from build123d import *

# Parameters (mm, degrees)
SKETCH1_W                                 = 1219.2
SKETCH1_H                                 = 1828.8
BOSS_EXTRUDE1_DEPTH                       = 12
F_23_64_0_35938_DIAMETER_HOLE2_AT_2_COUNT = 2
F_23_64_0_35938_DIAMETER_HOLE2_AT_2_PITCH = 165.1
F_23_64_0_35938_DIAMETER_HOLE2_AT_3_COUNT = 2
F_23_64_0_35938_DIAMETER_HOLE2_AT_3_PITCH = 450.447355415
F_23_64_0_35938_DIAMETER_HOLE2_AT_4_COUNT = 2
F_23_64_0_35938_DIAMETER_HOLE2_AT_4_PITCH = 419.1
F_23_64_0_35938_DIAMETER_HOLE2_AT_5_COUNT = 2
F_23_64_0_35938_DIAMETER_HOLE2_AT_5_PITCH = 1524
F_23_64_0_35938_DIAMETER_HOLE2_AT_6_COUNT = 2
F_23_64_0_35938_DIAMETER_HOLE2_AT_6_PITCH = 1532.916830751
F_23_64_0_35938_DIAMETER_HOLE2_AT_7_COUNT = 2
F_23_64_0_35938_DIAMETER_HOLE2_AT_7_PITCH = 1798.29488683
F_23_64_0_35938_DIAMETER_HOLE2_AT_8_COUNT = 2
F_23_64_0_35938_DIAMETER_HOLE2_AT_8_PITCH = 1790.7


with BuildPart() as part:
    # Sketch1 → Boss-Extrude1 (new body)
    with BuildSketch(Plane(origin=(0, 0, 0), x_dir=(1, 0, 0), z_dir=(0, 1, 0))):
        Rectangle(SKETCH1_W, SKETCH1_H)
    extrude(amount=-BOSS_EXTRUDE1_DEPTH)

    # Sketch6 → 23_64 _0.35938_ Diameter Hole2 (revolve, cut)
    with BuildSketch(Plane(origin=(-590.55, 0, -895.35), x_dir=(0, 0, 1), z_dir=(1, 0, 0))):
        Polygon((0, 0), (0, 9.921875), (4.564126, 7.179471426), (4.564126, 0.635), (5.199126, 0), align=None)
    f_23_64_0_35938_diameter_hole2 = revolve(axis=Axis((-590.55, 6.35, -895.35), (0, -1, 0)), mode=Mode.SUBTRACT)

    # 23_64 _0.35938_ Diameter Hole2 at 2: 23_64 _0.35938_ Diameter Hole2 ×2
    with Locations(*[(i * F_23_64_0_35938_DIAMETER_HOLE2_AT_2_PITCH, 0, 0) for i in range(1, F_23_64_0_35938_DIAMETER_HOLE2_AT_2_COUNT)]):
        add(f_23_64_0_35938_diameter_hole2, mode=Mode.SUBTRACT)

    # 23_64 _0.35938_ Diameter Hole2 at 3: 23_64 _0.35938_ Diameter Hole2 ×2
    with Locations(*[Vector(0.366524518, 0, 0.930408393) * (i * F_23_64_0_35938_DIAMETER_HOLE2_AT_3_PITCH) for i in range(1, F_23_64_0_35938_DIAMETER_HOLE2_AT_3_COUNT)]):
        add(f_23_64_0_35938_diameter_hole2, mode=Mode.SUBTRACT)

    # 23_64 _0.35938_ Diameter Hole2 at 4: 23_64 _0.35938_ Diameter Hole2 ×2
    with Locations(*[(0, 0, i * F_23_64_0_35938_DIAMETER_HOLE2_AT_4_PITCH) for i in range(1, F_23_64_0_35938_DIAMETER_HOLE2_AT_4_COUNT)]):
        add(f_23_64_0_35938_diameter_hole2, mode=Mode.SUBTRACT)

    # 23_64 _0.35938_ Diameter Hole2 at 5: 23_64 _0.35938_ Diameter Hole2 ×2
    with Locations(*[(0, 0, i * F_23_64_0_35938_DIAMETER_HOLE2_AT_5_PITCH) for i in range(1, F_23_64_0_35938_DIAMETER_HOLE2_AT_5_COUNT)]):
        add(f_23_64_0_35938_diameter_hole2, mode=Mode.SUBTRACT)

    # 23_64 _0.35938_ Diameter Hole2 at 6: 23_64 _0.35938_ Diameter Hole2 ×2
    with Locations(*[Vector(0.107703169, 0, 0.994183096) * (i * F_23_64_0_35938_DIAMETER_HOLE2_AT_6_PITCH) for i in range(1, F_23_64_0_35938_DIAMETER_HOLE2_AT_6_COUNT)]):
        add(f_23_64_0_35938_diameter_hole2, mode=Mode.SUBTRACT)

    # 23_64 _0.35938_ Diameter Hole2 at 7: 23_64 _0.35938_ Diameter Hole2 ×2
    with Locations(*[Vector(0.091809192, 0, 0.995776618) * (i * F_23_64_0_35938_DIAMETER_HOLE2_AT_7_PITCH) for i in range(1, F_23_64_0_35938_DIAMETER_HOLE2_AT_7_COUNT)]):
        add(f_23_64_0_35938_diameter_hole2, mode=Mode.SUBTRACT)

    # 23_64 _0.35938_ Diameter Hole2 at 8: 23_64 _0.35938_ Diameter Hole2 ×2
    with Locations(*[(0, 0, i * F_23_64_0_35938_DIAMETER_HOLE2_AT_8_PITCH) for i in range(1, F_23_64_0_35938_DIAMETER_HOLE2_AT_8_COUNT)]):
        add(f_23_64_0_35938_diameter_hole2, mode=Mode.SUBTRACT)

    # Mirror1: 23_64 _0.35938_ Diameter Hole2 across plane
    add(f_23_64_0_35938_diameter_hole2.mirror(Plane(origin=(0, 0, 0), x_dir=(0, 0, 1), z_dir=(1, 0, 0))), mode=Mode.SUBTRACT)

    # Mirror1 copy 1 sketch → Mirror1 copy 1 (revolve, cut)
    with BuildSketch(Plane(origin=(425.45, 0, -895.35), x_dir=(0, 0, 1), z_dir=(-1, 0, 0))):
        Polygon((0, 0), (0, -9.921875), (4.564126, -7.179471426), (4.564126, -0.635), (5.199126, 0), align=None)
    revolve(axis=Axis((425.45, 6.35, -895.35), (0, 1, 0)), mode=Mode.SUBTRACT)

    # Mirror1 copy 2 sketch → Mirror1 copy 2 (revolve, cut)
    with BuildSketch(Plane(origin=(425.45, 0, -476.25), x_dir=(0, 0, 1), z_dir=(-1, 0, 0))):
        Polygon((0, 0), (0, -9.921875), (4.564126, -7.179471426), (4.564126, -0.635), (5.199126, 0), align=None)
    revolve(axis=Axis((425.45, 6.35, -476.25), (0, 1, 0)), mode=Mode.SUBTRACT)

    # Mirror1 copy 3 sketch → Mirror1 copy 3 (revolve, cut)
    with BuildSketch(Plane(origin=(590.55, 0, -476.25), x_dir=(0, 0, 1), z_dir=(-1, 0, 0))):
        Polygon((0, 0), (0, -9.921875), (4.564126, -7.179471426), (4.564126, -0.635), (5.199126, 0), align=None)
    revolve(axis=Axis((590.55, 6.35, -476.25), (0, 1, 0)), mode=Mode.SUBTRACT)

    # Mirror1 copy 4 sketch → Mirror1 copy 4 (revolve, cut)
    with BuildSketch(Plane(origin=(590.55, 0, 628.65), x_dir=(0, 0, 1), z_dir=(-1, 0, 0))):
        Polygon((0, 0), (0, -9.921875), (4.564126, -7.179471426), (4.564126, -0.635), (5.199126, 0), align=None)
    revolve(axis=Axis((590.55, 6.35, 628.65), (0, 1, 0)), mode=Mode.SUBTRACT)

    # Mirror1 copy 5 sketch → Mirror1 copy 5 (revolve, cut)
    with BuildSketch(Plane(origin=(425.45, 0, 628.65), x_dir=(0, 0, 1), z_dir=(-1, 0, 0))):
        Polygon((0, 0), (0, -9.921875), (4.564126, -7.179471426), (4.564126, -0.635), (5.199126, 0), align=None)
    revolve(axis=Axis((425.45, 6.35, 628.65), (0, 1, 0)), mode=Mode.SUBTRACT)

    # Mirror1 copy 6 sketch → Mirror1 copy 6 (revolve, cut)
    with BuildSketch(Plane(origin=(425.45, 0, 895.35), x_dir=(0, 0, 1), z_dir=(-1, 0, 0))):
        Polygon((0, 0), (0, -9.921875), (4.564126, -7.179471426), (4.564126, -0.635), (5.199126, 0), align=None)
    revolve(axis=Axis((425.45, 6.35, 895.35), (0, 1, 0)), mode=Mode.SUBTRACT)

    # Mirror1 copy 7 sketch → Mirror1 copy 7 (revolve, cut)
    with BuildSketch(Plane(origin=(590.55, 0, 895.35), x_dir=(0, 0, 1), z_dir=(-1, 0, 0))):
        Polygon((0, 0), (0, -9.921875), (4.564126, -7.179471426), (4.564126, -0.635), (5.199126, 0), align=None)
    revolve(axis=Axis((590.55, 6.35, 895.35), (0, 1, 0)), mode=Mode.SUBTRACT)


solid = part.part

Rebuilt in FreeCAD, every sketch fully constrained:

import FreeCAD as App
import Part
import Sketcher

V = App.Vector
Q = App.Units.Quantity

doc = App.newDocument("Part")
body = doc.addObject("PartDesign::Body", "Body")

# Sketch on XZ plane
sketch1 = body.newObject("Sketcher::SketchObject", "Sketch")
sketch1.AttachmentSupport = (doc.getObject("XZ_Plane"), [""])
sketch1.MapMode = "FlatFace"
sketch1.addGeometry(Part.LineSegment(V(-610, -914, 0), V(-610, 914, 0)), False)
sketch1.addGeometry(Part.LineSegment(V(-610, 914, 0), V(610, 914, 0)), False)
sketch1.addGeometry(Part.LineSegment(V(610, 914, 0), V(610, -914, 0)), False)
sketch1.addGeometry(Part.LineSegment(V(610, -914, 0), V(-610, -914, 0)), False)
sketch1.addConstraint(Sketcher.Constraint("Coincident", 0, 2, 1, 1))
sketch1.addConstraint(Sketcher.Constraint("Coincident", 1, 2, 2, 1))
sketch1.addConstraint(Sketcher.Constraint("Coincident", 2, 2, 3, 1))
sketch1.addConstraint(Sketcher.Constraint("Coincident", 3, 2, 0, 1))
sketch1.addConstraint(Sketcher.Constraint("Vertical", 0))
sketch1.addConstraint(Sketcher.Constraint("Horizontal", 1))
sketch1.addConstraint(Sketcher.Constraint("Vertical", 2))
sketch1.addConstraint(Sketcher.Constraint("Horizontal", 3))
sketch1.addConstraint(Sketcher.Constraint("Symmetric", 0, 2, 2, 2, -1, 1))
sketch1.addConstraint(Sketcher.Constraint("DistanceX", 1, 1, 1, 2, Q("48 in")))
sketch1.addConstraint(Sketcher.Constraint("DistanceY", 0, 1, 0, 2, Q("72 in")))
pad1 = body.newObject("PartDesign::Pad", "Pad")
pad1.Profile = sketch1
pad1.Length = 12

# Sketch on YZ plane
sketch2 = body.newObject("Sketcher::SketchObject", "Sketch001")
sketch2.AttachmentSupport = (doc.getObject("YZ_Plane"), [""])
sketch2.MapMode = "FlatFace"
sketch2.AttachmentOffset = App.Placement(V(0, 0, -23.25 * 25.4), App.Rotation())
sketch2.addGeometry(Part.LineSegment(V(-9.9, -895.4, 0), V(0, -895.4, 0)), False)
sketch2.addGeometry(Part.LineSegment(V(0, -895.4, 0), V(0, -890.2, 0)), False)
sketch2.addGeometry(Part.LineSegment(V(0, -890.2, 0), V(-0.6, -890.8, 0)), False)
sketch2.addGeometry(Part.LineSegment(V(-0.6, -890.8, 0), V(-7.2, -890.8, 0)), False)
sketch2.addGeometry(Part.LineSegment(V(-7.2, -890.8, 0), V(-9.9, -895.4, 0)), False)
sketch2.addGeometry(Part.LineSegment(V(0, -895.4, 0), V(-9.9, -895.4, 0)), True)  # axis
sketch2.addConstraint(Sketcher.Constraint("Coincident", 0, 2, 1, 1))
sketch2.addConstraint(Sketcher.Constraint("Coincident", 1, 2, 2, 1))
sketch2.addConstraint(Sketcher.Constraint("Coincident", 2, 2, 3, 1))
sketch2.addConstraint(Sketcher.Constraint("Coincident", 3, 2, 4, 1))
sketch2.addConstraint(Sketcher.Constraint("Coincident", 4, 2, 0, 1))
sketch2.addConstraint(Sketcher.Constraint("Horizontal", 0))
sketch2.addConstraint(Sketcher.Constraint("Vertical", 1))
sketch2.addConstraint(Sketcher.Constraint("Horizontal", 3))
sketch2.addConstraint(Sketcher.Constraint("Horizontal", 5))
sketch2.addConstraint(Sketcher.Constraint("Coincident", 5, 1, 0, 2))
sketch2.addConstraint(Sketcher.Constraint("PointOnObject", 0, 2, -2))
sketch2.addConstraint(Sketcher.Constraint("Equal", 0, 5))
sketch2.addConstraint(Sketcher.Constraint("Angle", 2, Q("-135 deg")))
sketch2.addConstraint(Sketcher.Constraint("Angle", 4, Q("-121 deg")))
sketch2.addConstraint(Sketcher.Constraint("DistanceX", 0, 1, 0, 2, Q("0.390625 in")))
sketch2.addConstraint(Sketcher.Constraint("DistanceY", 0, 2, -1, 1, Q("35.25 in")))
sketch2.addConstraint(Sketcher.Constraint("DistanceX", 2, 2, -1, 1, Q("0.025 in")))
sketch2.addConstraint(Sketcher.Constraint("DistanceX", 3, 2, 3, 1, Q("6.544471 mm")))
groove = body.newObject("PartDesign::Groove", "Groove")
groove.Profile = sketch2
groove.ReferenceAxis = (sketch2, ["Axis0"])
groove.Angle = 360
doc.recompute()

linearpattern = body.newObject("PartDesign::LinearPattern", "LinearPattern")
linearpattern.Originals = [groove]
linearpattern.Direction = (doc.getObject("X_Axis"), [""])
linearpattern.Mode = "offset"
linearpattern.Offset = Q("6.5 in")
linearpattern.Occurrences = 2
body.Tip = linearpattern
doc.recompute()

datumline = body.newObject("PartDesign::Line", "DatumLine")
datumline.Placement = App.Placement(V(0, 0, 0), App.Rotation(V(0, 0, 1), V(0.366524518, 0, 0.930408393)))
linearpattern2 = body.newObject("PartDesign::LinearPattern", "LinearPattern001")
linearpattern2.Originals = [groove]
linearpattern2.Direction = (datumline, [""])
linearpattern2.Mode = "offset"
linearpattern2.Offset = 450.447355
linearpattern2.Occurrences = 2
body.Tip = linearpattern2
doc.recompute()

linearpattern3 = body.newObject("PartDesign::LinearPattern", "LinearPattern002")
linearpattern3.Originals = [groove]
linearpattern3.Direction = (doc.getObject("Z_Axis"), [""])
linearpattern3.Mode = "offset"
linearpattern3.Offset = Q("16.5 in")
linearpattern3.Occurrences = 2
body.Tip = linearpattern3
doc.recompute()

linearpattern4 = body.newObject("PartDesign::LinearPattern", "LinearPattern003")
linearpattern4.Originals = [groove]
linearpattern4.Direction = (doc.getObject("Z_Axis"), [""])
linearpattern4.Mode = "offset"
linearpattern4.Offset = Q("60 in")
linearpattern4.Occurrences = 2
body.Tip = linearpattern4
doc.recompute()

datumline2 = body.newObject("PartDesign::Line", "DatumLine001")
datumline2.Placement = App.Placement(V(0, 0, 0), App.Rotation(V(0, 0, 1), V(0.107703169, 0, 0.994183096)))
linearpattern5 = body.newObject("PartDesign::LinearPattern", "LinearPattern004")
linearpattern5.Originals = [groove]
linearpattern5.Direction = (datumline2, [""])
linearpattern5.Mode = "offset"
linearpattern5.Offset = 1532.916832
linearpattern5.Occurrences = 2
body.Tip = linearpattern5
doc.recompute()

datumline3 = body.newObject("PartDesign::Line", "DatumLine002")
datumline3.Placement = App.Placement(V(0, 0, 0), App.Rotation(V(0, 0, 1), V(0.091809192, 0, 0.995776618)))
linearpattern6 = body.newObject("PartDesign::LinearPattern", "LinearPattern005")
linearpattern6.Originals = [groove]
linearpattern6.Direction = (datumline3, [""])
linearpattern6.Mode = "offset"
linearpattern6.Offset = 1798.294887
linearpattern6.Occurrences = 2
body.Tip = linearpattern6
doc.recompute()

linearpattern7 = body.newObject("PartDesign::LinearPattern", "LinearPattern006")
linearpattern7.Originals = [groove]
linearpattern7.Direction = (doc.getObject("Z_Axis"), [""])
linearpattern7.Mode = "offset"
linearpattern7.Offset = Q("70.5 in")
linearpattern7.Occurrences = 2
body.Tip = linearpattern7
doc.recompute()

mirrored = body.newObject("PartDesign::Mirrored", "Mirrored")
mirrored.Originals = [groove]
mirrored.MirrorPlane = (doc.getObject("YZ_Plane"), [""])
body.Tip = mirrored

# Sketch on YZ plane
sketch3 = body.newObject("Sketcher::SketchObject", "Sketch002")
sketch3.AttachmentSupport = (doc.getObject("YZ_Plane"), [""])
sketch3.MapMode = "FlatFace"
sketch3.AttachmentOffset = App.Placement(V(0, 0, 16.75 * 25.4), App.Rotation())
sketch3.addGeometry(Part.LineSegment(V(0, -895.4, 0), V(-9.9, -895.4, 0)), False)
sketch3.addGeometry(Part.LineSegment(V(-9.9, -895.4, 0), V(-7.2, -890.8, 0)), False)
sketch3.addGeometry(Part.LineSegment(V(-7.2, -890.8, 0), V(-0.6, -890.8, 0)), False)
sketch3.addGeometry(Part.LineSegment(V(-0.6, -890.8, 0), V(0, -890.2, 0)), False)
sketch3.addGeometry(Part.LineSegment(V(0, -890.2, 0), V(0, -895.4, 0)), False)
sketch3.addGeometry(Part.LineSegment(V(-9.9, -895.4, 0), V(0, -895.4, 0)), True)  # axis
sketch3.addConstraint(Sketcher.Constraint("Coincident", 0, 2, 1, 1))
sketch3.addConstraint(Sketcher.Constraint("Coincident", 1, 2, 2, 1))
sketch3.addConstraint(Sketcher.Constraint("Coincident", 2, 2, 3, 1))
sketch3.addConstraint(Sketcher.Constraint("Coincident", 3, 2, 4, 1))
sketch3.addConstraint(Sketcher.Constraint("Coincident", 4, 2, 0, 1))
sketch3.addConstraint(Sketcher.Constraint("Horizontal", 0))
sketch3.addConstraint(Sketcher.Constraint("Horizontal", 2))
sketch3.addConstraint(Sketcher.Constraint("Vertical", 4))
sketch3.addConstraint(Sketcher.Constraint("Horizontal", 5))
sketch3.addConstraint(Sketcher.Constraint("Coincident", 5, 1, 0, 2))
sketch3.addConstraint(Sketcher.Constraint("PointOnObject", 3, 2, -2))
sketch3.addConstraint(Sketcher.Constraint("PointOnObject", 5, 2, -2))
sketch3.addConstraint(Sketcher.Constraint("Angle", 1, Q("59 deg")))
sketch3.addConstraint(Sketcher.Constraint("Angle", 3, Q("45 deg")))
sketch3.addConstraint(Sketcher.Constraint("DistanceX", 0, 2, 0, 1, Q("0.390625 in")))
sketch3.addConstraint(Sketcher.Constraint("DistanceY", 0, 2, -1, 1, Q("35.25 in")))
sketch3.addConstraint(Sketcher.Constraint("DistanceX", 2, 2, -1, 1, Q("0.025 in")))
sketch3.addConstraint(Sketcher.Constraint("DistanceX", 2, 1, 2, 2, Q("6.544471 mm")))
groove2 = body.newObject("PartDesign::Groove", "Groove001")
groove2.Profile = sketch3
groove2.ReferenceAxis = (sketch3, ["Axis0"])
groove2.Angle = 360

# Sketch on YZ plane
sketch4 = body.newObject("Sketcher::SketchObject", "Sketch003")
sketch4.AttachmentSupport = (doc.getObject("YZ_Plane"), [""])
sketch4.MapMode = "FlatFace"
sketch4.AttachmentOffset = App.Placement(V(0, 0, 16.75 * 25.4), App.Rotation())
sketch4.addGeometry(Part.LineSegment(V(0, -476.2, 0), V(-9.9, -476.2, 0)), False)
sketch4.addGeometry(Part.LineSegment(V(-9.9, -476.2, 0), V(-7.2, -471.7, 0)), False)
sketch4.addGeometry(Part.LineSegment(V(-7.2, -471.7, 0), V(-0.6, -471.7, 0)), False)
sketch4.addGeometry(Part.LineSegment(V(-0.6, -471.7, 0), V(0, -471.1, 0)), False)
sketch4.addGeometry(Part.LineSegment(V(0, -471.1, 0), V(0, -476.2, 0)), False)
sketch4.addGeometry(Part.LineSegment(V(-9.9, -476.2, 0), V(0, -476.2, 0)), True)  # axis
sketch4.addConstraint(Sketcher.Constraint("Coincident", 0, 2, 1, 1))
sketch4.addConstraint(Sketcher.Constraint("Coincident", 1, 2, 2, 1))
sketch4.addConstraint(Sketcher.Constraint("Coincident", 2, 2, 3, 1))
sketch4.addConstraint(Sketcher.Constraint("Coincident", 3, 2, 4, 1))
sketch4.addConstraint(Sketcher.Constraint("Coincident", 4, 2, 0, 1))
sketch4.addConstraint(Sketcher.Constraint("Horizontal", 0))
sketch4.addConstraint(Sketcher.Constraint("Horizontal", 2))
sketch4.addConstraint(Sketcher.Constraint("Vertical", 4))
sketch4.addConstraint(Sketcher.Constraint("Horizontal", 5))
sketch4.addConstraint(Sketcher.Constraint("Coincident", 5, 1, 0, 2))
sketch4.addConstraint(Sketcher.Constraint("PointOnObject", 3, 2, -2))
sketch4.addConstraint(Sketcher.Constraint("PointOnObject", 5, 2, -2))
sketch4.addConstraint(Sketcher.Constraint("Angle", 1, Q("59 deg")))
sketch4.addConstraint(Sketcher.Constraint("Angle", 3, Q("45 deg")))
sketch4.addConstraint(Sketcher.Constraint("DistanceX", 0, 2, 0, 1, Q("0.390625 in")))
sketch4.addConstraint(Sketcher.Constraint("DistanceY", 0, 2, -1, 1, Q("18.75 in")))
sketch4.addConstraint(Sketcher.Constraint("DistanceX", 2, 2, -1, 1, Q("0.025 in")))
sketch4.addConstraint(Sketcher.Constraint("DistanceX", 2, 1, 2, 2, Q("6.544471 mm")))
groove3 = body.newObject("PartDesign::Groove", "Groove002")
groove3.Profile = sketch4
groove3.ReferenceAxis = (sketch4, ["Axis0"])
groove3.Angle = 360

# Sketch on YZ plane
sketch5 = body.newObject("Sketcher::SketchObject", "Sketch004")
sketch5.AttachmentSupport = (doc.getObject("YZ_Plane"), [""])
sketch5.MapMode = "FlatFace"
sketch5.AttachmentOffset = App.Placement(V(0, 0, 23.25 * 25.4), App.Rotation())
sketch5.addGeometry(Part.LineSegment(V(0, -476.2, 0), V(-9.9, -476.2, 0)), False)
sketch5.addGeometry(Part.LineSegment(V(-9.9, -476.2, 0), V(-7.2, -471.7, 0)), False)
sketch5.addGeometry(Part.LineSegment(V(-7.2, -471.7, 0), V(-0.6, -471.7, 0)), False)
sketch5.addGeometry(Part.LineSegment(V(-0.6, -471.7, 0), V(0, -471.1, 0)), False)
sketch5.addGeometry(Part.LineSegment(V(0, -471.1, 0), V(0, -476.2, 0)), False)
sketch5.addGeometry(Part.LineSegment(V(-9.9, -476.2, 0), V(0, -476.2, 0)), True)  # axis
sketch5.addConstraint(Sketcher.Constraint("Coincident", 0, 2, 1, 1))
sketch5.addConstraint(Sketcher.Constraint("Coincident", 1, 2, 2, 1))
sketch5.addConstraint(Sketcher.Constraint("Coincident", 2, 2, 3, 1))
sketch5.addConstraint(Sketcher.Constraint("Coincident", 3, 2, 4, 1))
sketch5.addConstraint(Sketcher.Constraint("Coincident", 4, 2, 0, 1))
sketch5.addConstraint(Sketcher.Constraint("Horizontal", 0))
sketch5.addConstraint(Sketcher.Constraint("Horizontal", 2))
sketch5.addConstraint(Sketcher.Constraint("Vertical", 4))
sketch5.addConstraint(Sketcher.Constraint("Horizontal", 5))
sketch5.addConstraint(Sketcher.Constraint("Coincident", 5, 1, 0, 2))
sketch5.addConstraint(Sketcher.Constraint("PointOnObject", 3, 2, -2))
sketch5.addConstraint(Sketcher.Constraint("PointOnObject", 5, 2, -2))
sketch5.addConstraint(Sketcher.Constraint("Angle", 1, Q("59 deg")))
sketch5.addConstraint(Sketcher.Constraint("Angle", 3, Q("45 deg")))
sketch5.addConstraint(Sketcher.Constraint("DistanceX", 0, 2, 0, 1, Q("0.390625 in")))
sketch5.addConstraint(Sketcher.Constraint("DistanceY", 0, 2, -1, 1, Q("18.75 in")))
sketch5.addConstraint(Sketcher.Constraint("DistanceX", 2, 2, -1, 1, Q("0.025 in")))
sketch5.addConstraint(Sketcher.Constraint("DistanceX", 2, 1, 2, 2, Q("6.544471 mm")))
groove4 = body.newObject("PartDesign::Groove", "Groove003")
groove4.Profile = sketch5
groove4.ReferenceAxis = (sketch5, ["Axis0"])
groove4.Angle = 360

# Sketch on YZ plane
sketch6 = body.newObject("Sketcher::SketchObject", "Sketch005")
sketch6.AttachmentSupport = (doc.getObject("YZ_Plane"), [""])
sketch6.MapMode = "FlatFace"
sketch6.AttachmentOffset = App.Placement(V(0, 0, 23.25 * 25.4), App.Rotation())
sketch6.addGeometry(Part.LineSegment(V(0, 628.6, 0), V(-9.9, 628.6, 0)), False)
sketch6.addGeometry(Part.LineSegment(V(-9.9, 628.6, 0), V(-7.2, 633.2, 0)), False)
sketch6.addGeometry(Part.LineSegment(V(-7.2, 633.2, 0), V(-0.6, 633.2, 0)), False)
sketch6.addGeometry(Part.LineSegment(V(-0.6, 633.2, 0), V(0, 633.8, 0)), False)
sketch6.addGeometry(Part.LineSegment(V(0, 633.8, 0), V(0, 628.6, 0)), False)
sketch6.addGeometry(Part.LineSegment(V(-9.9, 628.6, 0), V(0, 628.6, 0)), True)  # axis
sketch6.addConstraint(Sketcher.Constraint("Coincident", 0, 2, 1, 1))
sketch6.addConstraint(Sketcher.Constraint("Coincident", 1, 2, 2, 1))
sketch6.addConstraint(Sketcher.Constraint("Coincident", 2, 2, 3, 1))
sketch6.addConstraint(Sketcher.Constraint("Coincident", 3, 2, 4, 1))
sketch6.addConstraint(Sketcher.Constraint("Coincident", 4, 2, 0, 1))
sketch6.addConstraint(Sketcher.Constraint("Horizontal", 0))
sketch6.addConstraint(Sketcher.Constraint("Horizontal", 2))
sketch6.addConstraint(Sketcher.Constraint("Vertical", 4))
sketch6.addConstraint(Sketcher.Constraint("Horizontal", 5))
sketch6.addConstraint(Sketcher.Constraint("Coincident", 5, 1, 0, 2))
sketch6.addConstraint(Sketcher.Constraint("PointOnObject", 3, 2, -2))
sketch6.addConstraint(Sketcher.Constraint("PointOnObject", 5, 2, -2))
sketch6.addConstraint(Sketcher.Constraint("Angle", 1, Q("59 deg")))
sketch6.addConstraint(Sketcher.Constraint("Angle", 3, Q("45 deg")))
sketch6.addConstraint(Sketcher.Constraint("DistanceX", 0, 2, 0, 1, Q("0.390625 in")))
sketch6.addConstraint(Sketcher.Constraint("DistanceY", -1, 1, 0, 2, Q("24.75 in")))
sketch6.addConstraint(Sketcher.Constraint("DistanceX", 2, 2, -1, 1, Q("0.025 in")))
sketch6.addConstraint(Sketcher.Constraint("DistanceX", 2, 1, 2, 2, Q("6.544471 mm")))
groove5 = body.newObject("PartDesign::Groove", "Groove004")
groove5.Profile = sketch6
groove5.ReferenceAxis = (sketch6, ["Axis0"])
groove5.Angle = 360

# Sketch on YZ plane
sketch7 = body.newObject("Sketcher::SketchObject", "Sketch006")
sketch7.AttachmentSupport = (doc.getObject("YZ_Plane"), [""])
sketch7.MapMode = "FlatFace"
sketch7.AttachmentOffset = App.Placement(V(0, 0, 16.75 * 25.4), App.Rotation())
sketch7.addGeometry(Part.LineSegment(V(0, 628.6, 0), V(-9.9, 628.6, 0)), False)
sketch7.addGeometry(Part.LineSegment(V(-9.9, 628.6, 0), V(-7.2, 633.2, 0)), False)
sketch7.addGeometry(Part.LineSegment(V(-7.2, 633.2, 0), V(-0.6, 633.2, 0)), False)
sketch7.addGeometry(Part.LineSegment(V(-0.6, 633.2, 0), V(0, 633.8, 0)), False)
sketch7.addGeometry(Part.LineSegment(V(0, 633.8, 0), V(0, 628.6, 0)), False)
sketch7.addGeometry(Part.LineSegment(V(-9.9, 628.6, 0), V(0, 628.6, 0)), True)  # axis
sketch7.addConstraint(Sketcher.Constraint("Coincident", 0, 2, 1, 1))
sketch7.addConstraint(Sketcher.Constraint("Coincident", 1, 2, 2, 1))
sketch7.addConstraint(Sketcher.Constraint("Coincident", 2, 2, 3, 1))
sketch7.addConstraint(Sketcher.Constraint("Coincident", 3, 2, 4, 1))
sketch7.addConstraint(Sketcher.Constraint("Coincident", 4, 2, 0, 1))
sketch7.addConstraint(Sketcher.Constraint("Horizontal", 0))
sketch7.addConstraint(Sketcher.Constraint("Horizontal", 2))
sketch7.addConstraint(Sketcher.Constraint("Vertical", 4))
sketch7.addConstraint(Sketcher.Constraint("Horizontal", 5))
sketch7.addConstraint(Sketcher.Constraint("Coincident", 5, 1, 0, 2))
sketch7.addConstraint(Sketcher.Constraint("PointOnObject", 3, 2, -2))
sketch7.addConstraint(Sketcher.Constraint("PointOnObject", 5, 2, -2))
sketch7.addConstraint(Sketcher.Constraint("Angle", 1, Q("59 deg")))
sketch7.addConstraint(Sketcher.Constraint("Angle", 3, Q("45 deg")))
sketch7.addConstraint(Sketcher.Constraint("DistanceX", 0, 2, 0, 1, Q("0.390625 in")))
sketch7.addConstraint(Sketcher.Constraint("DistanceY", -1, 1, 0, 2, Q("24.75 in")))
sketch7.addConstraint(Sketcher.Constraint("DistanceX", 2, 2, -1, 1, Q("0.025 in")))
sketch7.addConstraint(Sketcher.Constraint("DistanceX", 2, 1, 2, 2, Q("6.544471 mm")))
groove6 = body.newObject("PartDesign::Groove", "Groove005")
groove6.Profile = sketch7
groove6.ReferenceAxis = (sketch7, ["Axis0"])
groove6.Angle = 360

# Sketch on YZ plane
sketch8 = body.newObject("Sketcher::SketchObject", "Sketch007")
sketch8.AttachmentSupport = (doc.getObject("YZ_Plane"), [""])
sketch8.MapMode = "FlatFace"
sketch8.AttachmentOffset = App.Placement(V(0, 0, 16.75 * 25.4), App.Rotation())
sketch8.addGeometry(Part.LineSegment(V(0, 895.4, 0), V(-9.9, 895.4, 0)), False)
sketch8.addGeometry(Part.LineSegment(V(-9.9, 895.4, 0), V(-7.2, 899.9, 0)), False)
sketch8.addGeometry(Part.LineSegment(V(-7.2, 899.9, 0), V(-0.6, 899.9, 0)), False)
sketch8.addGeometry(Part.LineSegment(V(-0.6, 899.9, 0), V(0, 900.5, 0)), False)
sketch8.addGeometry(Part.LineSegment(V(0, 900.5, 0), V(0, 895.4, 0)), False)
sketch8.addGeometry(Part.LineSegment(V(-9.9, 895.4, 0), V(0, 895.4, 0)), True)  # axis
sketch8.addConstraint(Sketcher.Constraint("Coincident", 0, 2, 1, 1))
sketch8.addConstraint(Sketcher.Constraint("Coincident", 1, 2, 2, 1))
sketch8.addConstraint(Sketcher.Constraint("Coincident", 2, 2, 3, 1))
sketch8.addConstraint(Sketcher.Constraint("Coincident", 3, 2, 4, 1))
sketch8.addConstraint(Sketcher.Constraint("Coincident", 4, 2, 0, 1))
sketch8.addConstraint(Sketcher.Constraint("Horizontal", 0))
sketch8.addConstraint(Sketcher.Constraint("Horizontal", 2))
sketch8.addConstraint(Sketcher.Constraint("Vertical", 4))
sketch8.addConstraint(Sketcher.Constraint("Horizontal", 5))
sketch8.addConstraint(Sketcher.Constraint("Coincident", 5, 1, 0, 2))
sketch8.addConstraint(Sketcher.Constraint("PointOnObject", 3, 2, -2))
sketch8.addConstraint(Sketcher.Constraint("PointOnObject", 5, 2, -2))
sketch8.addConstraint(Sketcher.Constraint("Angle", 1, Q("59 deg")))
sketch8.addConstraint(Sketcher.Constraint("Angle", 3, Q("45 deg")))
sketch8.addConstraint(Sketcher.Constraint("DistanceX", 0, 2, 0, 1, Q("0.390625 in")))
sketch8.addConstraint(Sketcher.Constraint("DistanceY", -1, 1, 0, 2, Q("35.25 in")))
sketch8.addConstraint(Sketcher.Constraint("DistanceX", 2, 2, -1, 1, Q("0.025 in")))
sketch8.addConstraint(Sketcher.Constraint("DistanceX", 2, 1, 2, 2, Q("6.544471 mm")))
groove7 = body.newObject("PartDesign::Groove", "Groove006")
groove7.Profile = sketch8
groove7.ReferenceAxis = (sketch8, ["Axis0"])
groove7.Angle = 360

# Sketch on YZ plane
sketch9 = body.newObject("Sketcher::SketchObject", "Sketch008")
sketch9.AttachmentSupport = (doc.getObject("YZ_Plane"), [""])
sketch9.MapMode = "FlatFace"
sketch9.AttachmentOffset = App.Placement(V(0, 0, 23.25 * 25.4), App.Rotation())
sketch9.addGeometry(Part.LineSegment(V(0, 895.4, 0), V(-9.9, 895.4, 0)), False)
sketch9.addGeometry(Part.LineSegment(V(-9.9, 895.4, 0), V(-7.2, 899.9, 0)), False)
sketch9.addGeometry(Part.LineSegment(V(-7.2, 899.9, 0), V(-0.6, 899.9, 0)), False)
sketch9.addGeometry(Part.LineSegment(V(-0.6, 899.9, 0), V(0, 900.5, 0)), False)
sketch9.addGeometry(Part.LineSegment(V(0, 900.5, 0), V(0, 895.4, 0)), False)
sketch9.addGeometry(Part.LineSegment(V(-9.9, 895.4, 0), V(0, 895.4, 0)), True)  # axis
sketch9.addConstraint(Sketcher.Constraint("Coincident", 0, 2, 1, 1))
sketch9.addConstraint(Sketcher.Constraint("Coincident", 1, 2, 2, 1))
sketch9.addConstraint(Sketcher.Constraint("Coincident", 2, 2, 3, 1))
sketch9.addConstraint(Sketcher.Constraint("Coincident", 3, 2, 4, 1))
sketch9.addConstraint(Sketcher.Constraint("Coincident", 4, 2, 0, 1))
sketch9.addConstraint(Sketcher.Constraint("Horizontal", 0))
sketch9.addConstraint(Sketcher.Constraint("Horizontal", 2))
sketch9.addConstraint(Sketcher.Constraint("Vertical", 4))
sketch9.addConstraint(Sketcher.Constraint("Horizontal", 5))
sketch9.addConstraint(Sketcher.Constraint("Coincident", 5, 1, 0, 2))
sketch9.addConstraint(Sketcher.Constraint("PointOnObject", 3, 2, -2))
sketch9.addConstraint(Sketcher.Constraint("PointOnObject", 5, 2, -2))
sketch9.addConstraint(Sketcher.Constraint("Angle", 1, Q("59 deg")))
sketch9.addConstraint(Sketcher.Constraint("Angle", 3, Q("45 deg")))
sketch9.addConstraint(Sketcher.Constraint("DistanceX", 0, 2, 0, 1, Q("0.390625 in")))
sketch9.addConstraint(Sketcher.Constraint("DistanceY", -1, 1, 0, 2, Q("35.25 in")))
sketch9.addConstraint(Sketcher.Constraint("DistanceX", 2, 2, -1, 1, Q("0.025 in")))
sketch9.addConstraint(Sketcher.Constraint("DistanceX", 2, 1, 2, 2, Q("6.544471 mm")))
groove8 = body.newObject("PartDesign::Groove", "Groove007")
groove8.Profile = sketch9
groove8.ReferenceAxis = (sketch9, ["Axis0"])
groove8.Angle = 360

doc.recompute()
